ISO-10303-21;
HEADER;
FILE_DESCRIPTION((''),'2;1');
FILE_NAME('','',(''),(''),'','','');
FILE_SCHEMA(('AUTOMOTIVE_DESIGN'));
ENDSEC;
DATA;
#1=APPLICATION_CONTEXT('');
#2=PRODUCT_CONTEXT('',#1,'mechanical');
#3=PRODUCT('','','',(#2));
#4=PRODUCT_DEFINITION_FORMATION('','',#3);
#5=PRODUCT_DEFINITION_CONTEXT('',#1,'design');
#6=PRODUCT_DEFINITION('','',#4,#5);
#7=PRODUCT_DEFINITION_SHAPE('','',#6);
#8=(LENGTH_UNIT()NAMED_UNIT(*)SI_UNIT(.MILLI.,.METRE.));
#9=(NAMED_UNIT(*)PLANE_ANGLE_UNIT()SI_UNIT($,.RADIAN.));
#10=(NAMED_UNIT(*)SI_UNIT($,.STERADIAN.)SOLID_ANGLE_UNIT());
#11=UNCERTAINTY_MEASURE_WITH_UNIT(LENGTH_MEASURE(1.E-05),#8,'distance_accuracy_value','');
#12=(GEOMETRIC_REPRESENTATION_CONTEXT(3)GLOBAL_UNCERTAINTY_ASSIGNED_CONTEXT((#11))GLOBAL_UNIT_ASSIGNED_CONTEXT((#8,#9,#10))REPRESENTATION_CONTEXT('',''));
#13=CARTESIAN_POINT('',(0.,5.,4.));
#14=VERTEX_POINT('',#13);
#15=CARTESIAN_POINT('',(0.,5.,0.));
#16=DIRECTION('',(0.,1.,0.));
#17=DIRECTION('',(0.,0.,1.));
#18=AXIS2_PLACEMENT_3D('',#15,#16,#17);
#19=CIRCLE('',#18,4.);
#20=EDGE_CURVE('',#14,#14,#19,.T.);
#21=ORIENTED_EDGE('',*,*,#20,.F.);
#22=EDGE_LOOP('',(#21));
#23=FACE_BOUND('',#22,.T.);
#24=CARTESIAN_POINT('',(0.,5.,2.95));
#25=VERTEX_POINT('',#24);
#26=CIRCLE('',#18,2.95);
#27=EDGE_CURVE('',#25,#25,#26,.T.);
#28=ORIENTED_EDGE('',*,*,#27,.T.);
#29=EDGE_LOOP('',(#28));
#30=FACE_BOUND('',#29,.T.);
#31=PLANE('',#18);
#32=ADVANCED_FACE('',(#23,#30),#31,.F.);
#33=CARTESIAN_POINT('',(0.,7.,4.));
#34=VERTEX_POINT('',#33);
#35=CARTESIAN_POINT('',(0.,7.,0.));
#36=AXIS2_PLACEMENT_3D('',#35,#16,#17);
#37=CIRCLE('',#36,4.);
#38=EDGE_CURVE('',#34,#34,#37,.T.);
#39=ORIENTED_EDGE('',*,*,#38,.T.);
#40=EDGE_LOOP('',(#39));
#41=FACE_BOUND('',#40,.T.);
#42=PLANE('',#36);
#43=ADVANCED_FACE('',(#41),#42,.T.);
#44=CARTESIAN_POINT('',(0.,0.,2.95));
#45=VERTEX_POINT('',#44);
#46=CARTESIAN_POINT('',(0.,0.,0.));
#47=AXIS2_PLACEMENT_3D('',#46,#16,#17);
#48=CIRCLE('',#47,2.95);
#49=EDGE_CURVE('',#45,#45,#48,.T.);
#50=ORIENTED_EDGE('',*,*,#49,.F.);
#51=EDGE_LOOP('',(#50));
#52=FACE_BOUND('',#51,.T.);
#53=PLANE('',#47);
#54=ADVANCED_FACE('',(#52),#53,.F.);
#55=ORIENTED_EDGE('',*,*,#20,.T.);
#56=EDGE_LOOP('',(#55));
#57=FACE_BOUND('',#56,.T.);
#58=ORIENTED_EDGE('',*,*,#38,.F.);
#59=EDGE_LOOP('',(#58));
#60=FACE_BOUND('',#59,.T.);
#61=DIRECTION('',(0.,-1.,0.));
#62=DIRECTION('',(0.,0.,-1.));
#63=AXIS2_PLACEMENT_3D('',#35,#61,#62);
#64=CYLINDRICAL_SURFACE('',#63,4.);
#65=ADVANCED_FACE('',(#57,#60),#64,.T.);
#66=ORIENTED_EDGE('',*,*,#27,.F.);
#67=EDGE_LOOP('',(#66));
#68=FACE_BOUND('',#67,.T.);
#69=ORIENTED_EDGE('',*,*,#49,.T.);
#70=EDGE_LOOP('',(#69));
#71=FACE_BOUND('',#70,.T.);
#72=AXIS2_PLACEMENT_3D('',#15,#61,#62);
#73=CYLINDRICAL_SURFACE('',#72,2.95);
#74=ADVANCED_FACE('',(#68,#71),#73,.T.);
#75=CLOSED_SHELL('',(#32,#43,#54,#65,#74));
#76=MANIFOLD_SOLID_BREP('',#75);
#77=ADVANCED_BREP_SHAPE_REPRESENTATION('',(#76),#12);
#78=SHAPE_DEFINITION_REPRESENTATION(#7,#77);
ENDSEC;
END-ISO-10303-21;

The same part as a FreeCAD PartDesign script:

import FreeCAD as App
import Part
import Sketcher

V = App.Vector
Q = App.Units.Quantity

doc = App.newDocument("Part")
body = doc.addObject("PartDesign::Body", "Body")

# Sketch on XZ plane
sketch1 = body.newObject("Sketcher::SketchObject", "Sketch")
sketch1.AttachmentSupport = (doc.getObject("XZ_Plane"), [""])
sketch1.MapMode = "FlatFace"
sketch1.addGeometry(Part.Circle(V(0, 0, 0), V(0, 0, 1), 2.95), False)
sketch1.addConstraint([
    Sketcher.Constraint("Coincident", 0, 3, -1, 1),
    Sketcher.Constraint("Diameter", 0, Q("5.9 mm")),
])
pad1 = body.newObject("PartDesign::Pad", "Pad")
pad1.Profile = sketch1
pad1.Length = 5
pad1.Reversed = True

# Sketch on XZ plane
sketch2 = body.newObject("Sketcher::SketchObject", "Sketch001")
sketch2.AttachmentSupport = (doc.getObject("XZ_Plane"), [""])
sketch2.MapMode = "FlatFace"
sketch2.AttachmentOffset = App.Placement(V(0, 0, -5), App.Rotation())
sketch2.addGeometry(Part.Circle(V(0, 0, 0), V(0, 0, 1), 4), False)
sketch2.addConstraint([
    Sketcher.Constraint("Coincident", 0, 3, -1, 1),
    Sketcher.Constraint("Diameter", 0, Q("8 mm")),
])
pad2 = body.newObject("PartDesign::Pad", "Pad001")
pad2.Profile = sketch2
pad2.Length = 2
pad2.Reversed = True

doc.recompute()
